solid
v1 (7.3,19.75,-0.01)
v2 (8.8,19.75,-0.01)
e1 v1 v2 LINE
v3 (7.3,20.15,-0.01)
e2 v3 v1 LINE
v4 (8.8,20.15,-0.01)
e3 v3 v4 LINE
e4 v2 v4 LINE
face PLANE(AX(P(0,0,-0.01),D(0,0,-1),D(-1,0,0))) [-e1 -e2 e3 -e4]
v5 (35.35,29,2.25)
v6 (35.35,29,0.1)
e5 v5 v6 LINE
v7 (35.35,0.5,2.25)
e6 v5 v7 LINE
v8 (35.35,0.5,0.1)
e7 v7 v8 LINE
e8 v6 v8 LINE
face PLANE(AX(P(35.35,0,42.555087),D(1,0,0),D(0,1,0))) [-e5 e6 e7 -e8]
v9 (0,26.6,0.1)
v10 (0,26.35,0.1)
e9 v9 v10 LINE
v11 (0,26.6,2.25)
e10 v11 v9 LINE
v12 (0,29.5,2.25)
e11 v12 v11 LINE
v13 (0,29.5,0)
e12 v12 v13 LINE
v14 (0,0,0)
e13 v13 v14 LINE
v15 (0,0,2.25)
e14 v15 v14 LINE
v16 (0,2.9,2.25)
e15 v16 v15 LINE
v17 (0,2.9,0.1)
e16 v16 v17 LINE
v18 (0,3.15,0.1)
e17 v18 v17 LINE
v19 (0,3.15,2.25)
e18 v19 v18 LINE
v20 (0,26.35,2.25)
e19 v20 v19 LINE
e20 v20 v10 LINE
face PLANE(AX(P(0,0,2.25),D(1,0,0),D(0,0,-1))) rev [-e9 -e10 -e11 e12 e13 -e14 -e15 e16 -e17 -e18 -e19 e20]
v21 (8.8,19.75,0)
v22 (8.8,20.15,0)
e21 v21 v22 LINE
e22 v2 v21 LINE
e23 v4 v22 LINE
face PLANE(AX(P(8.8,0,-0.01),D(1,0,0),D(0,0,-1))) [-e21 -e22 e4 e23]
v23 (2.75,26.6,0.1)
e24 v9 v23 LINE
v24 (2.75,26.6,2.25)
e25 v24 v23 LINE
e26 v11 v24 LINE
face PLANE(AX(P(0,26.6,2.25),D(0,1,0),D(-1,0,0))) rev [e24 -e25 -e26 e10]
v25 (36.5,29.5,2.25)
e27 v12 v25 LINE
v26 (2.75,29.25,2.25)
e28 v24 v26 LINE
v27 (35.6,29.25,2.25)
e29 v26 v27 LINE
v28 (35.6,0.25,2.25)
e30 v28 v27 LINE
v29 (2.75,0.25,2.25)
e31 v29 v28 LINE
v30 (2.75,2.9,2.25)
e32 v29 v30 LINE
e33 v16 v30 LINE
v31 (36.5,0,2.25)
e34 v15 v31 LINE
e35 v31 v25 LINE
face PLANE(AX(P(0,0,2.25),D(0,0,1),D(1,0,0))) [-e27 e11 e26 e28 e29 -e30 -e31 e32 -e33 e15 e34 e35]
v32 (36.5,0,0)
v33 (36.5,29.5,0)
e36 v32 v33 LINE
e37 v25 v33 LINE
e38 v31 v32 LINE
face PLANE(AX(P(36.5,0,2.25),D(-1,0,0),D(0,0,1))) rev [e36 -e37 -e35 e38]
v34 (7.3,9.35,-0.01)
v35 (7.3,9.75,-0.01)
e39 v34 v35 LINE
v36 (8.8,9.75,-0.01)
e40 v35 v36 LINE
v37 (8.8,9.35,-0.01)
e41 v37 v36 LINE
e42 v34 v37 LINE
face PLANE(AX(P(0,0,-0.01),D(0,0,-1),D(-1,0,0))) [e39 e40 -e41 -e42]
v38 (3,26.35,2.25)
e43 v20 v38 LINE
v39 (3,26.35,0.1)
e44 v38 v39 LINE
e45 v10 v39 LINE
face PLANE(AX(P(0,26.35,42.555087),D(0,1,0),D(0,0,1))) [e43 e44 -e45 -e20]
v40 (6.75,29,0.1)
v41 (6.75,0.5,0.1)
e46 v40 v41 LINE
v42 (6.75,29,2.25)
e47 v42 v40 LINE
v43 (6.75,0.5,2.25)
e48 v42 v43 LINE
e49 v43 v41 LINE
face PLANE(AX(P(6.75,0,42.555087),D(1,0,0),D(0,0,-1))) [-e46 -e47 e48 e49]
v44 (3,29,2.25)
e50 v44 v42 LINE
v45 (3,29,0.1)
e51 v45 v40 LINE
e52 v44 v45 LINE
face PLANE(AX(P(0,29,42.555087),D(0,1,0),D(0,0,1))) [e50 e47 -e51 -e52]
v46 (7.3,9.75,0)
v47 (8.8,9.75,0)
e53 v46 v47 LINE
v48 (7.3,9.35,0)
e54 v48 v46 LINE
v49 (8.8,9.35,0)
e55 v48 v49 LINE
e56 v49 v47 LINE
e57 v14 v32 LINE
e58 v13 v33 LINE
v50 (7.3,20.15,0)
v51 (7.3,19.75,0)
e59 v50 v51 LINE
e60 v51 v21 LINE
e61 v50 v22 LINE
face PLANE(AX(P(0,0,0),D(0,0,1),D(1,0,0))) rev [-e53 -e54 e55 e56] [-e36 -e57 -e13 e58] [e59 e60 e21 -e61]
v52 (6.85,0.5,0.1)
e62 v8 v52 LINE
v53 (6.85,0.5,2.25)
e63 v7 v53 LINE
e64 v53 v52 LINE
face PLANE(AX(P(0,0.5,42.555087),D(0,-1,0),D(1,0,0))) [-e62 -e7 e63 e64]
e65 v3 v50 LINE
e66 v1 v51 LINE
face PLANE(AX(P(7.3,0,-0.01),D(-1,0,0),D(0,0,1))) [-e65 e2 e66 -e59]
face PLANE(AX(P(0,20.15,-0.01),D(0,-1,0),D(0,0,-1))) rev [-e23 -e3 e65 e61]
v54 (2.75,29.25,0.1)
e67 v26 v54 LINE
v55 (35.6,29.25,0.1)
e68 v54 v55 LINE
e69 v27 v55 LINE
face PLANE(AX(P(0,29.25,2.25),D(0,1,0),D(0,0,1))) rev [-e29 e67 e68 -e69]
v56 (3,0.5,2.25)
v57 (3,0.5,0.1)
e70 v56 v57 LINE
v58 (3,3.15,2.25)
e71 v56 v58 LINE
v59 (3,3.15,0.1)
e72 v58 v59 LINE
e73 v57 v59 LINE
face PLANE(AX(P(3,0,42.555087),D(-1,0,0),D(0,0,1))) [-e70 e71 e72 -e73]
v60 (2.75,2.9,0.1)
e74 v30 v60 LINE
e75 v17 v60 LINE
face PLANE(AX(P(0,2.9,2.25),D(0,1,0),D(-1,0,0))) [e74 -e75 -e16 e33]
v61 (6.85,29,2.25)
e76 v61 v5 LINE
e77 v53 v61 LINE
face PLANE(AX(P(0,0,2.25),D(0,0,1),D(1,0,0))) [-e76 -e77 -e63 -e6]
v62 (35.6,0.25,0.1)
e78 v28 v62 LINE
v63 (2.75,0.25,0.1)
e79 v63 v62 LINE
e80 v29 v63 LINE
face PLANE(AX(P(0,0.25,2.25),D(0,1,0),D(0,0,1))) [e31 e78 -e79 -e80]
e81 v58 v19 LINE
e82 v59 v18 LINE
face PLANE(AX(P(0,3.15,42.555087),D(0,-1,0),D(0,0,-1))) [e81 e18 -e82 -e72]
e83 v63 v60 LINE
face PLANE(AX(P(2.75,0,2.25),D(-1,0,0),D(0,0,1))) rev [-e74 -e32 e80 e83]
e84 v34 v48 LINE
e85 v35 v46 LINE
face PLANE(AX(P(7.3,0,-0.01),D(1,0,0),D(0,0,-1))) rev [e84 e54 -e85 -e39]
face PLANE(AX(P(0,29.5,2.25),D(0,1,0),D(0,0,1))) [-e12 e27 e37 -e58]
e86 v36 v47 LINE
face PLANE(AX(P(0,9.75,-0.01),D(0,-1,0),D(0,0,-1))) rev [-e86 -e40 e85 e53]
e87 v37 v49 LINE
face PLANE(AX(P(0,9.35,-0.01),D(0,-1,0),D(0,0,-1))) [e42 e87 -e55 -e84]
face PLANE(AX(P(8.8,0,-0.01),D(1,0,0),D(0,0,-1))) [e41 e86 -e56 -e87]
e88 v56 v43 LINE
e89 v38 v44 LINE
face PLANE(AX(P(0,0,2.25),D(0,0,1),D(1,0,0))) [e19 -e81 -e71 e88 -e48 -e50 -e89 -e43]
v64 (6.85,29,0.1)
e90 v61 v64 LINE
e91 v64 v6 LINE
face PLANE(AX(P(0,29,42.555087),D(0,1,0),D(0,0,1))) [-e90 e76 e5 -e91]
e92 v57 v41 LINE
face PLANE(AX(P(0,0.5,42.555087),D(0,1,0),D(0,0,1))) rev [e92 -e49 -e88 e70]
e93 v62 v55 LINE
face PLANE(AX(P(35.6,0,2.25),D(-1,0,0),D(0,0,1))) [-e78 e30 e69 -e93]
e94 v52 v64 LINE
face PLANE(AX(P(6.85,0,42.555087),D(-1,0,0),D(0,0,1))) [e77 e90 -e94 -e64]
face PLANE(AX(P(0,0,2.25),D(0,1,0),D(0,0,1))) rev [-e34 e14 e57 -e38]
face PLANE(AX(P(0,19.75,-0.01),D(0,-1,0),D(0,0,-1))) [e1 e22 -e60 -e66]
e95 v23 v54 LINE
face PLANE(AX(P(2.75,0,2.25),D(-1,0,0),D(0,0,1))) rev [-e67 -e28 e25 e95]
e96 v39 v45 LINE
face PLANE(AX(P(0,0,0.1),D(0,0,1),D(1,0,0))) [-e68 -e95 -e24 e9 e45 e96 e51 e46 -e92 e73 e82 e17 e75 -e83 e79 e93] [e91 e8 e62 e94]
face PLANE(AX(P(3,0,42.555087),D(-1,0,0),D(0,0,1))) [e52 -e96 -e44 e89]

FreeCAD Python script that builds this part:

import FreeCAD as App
import Part
import Sketcher

doc = App.newDocument("Part")
body = doc.addObject("PartDesign::Body", "Body")

sketch1 = body.newObject("Sketcher::SketchObject", "Sketch")
sketch1.AttachmentSupport = (doc.getObject("XY_Plane"), [""])
sketch1.MapMode = "FlatFace"
sketch1.addGeometry(Part.LineSegment(App.Vector(36.5, 29.5, 0), App.Vector(0, 29.5, 0)), False)
sketch1.addGeometry(Part.LineSegment(App.Vector(0, 29.5, 0), App.Vector(0, 26.6, 0)), False)
sketch1.addGeometry(Part.LineSegment(App.Vector(0, 26.6, 0), App.Vector(2.8, 26.6, 0)), False)
sketch1.addGeometry(Part.LineSegment(App.Vector(2.8, 26.6, 0), App.Vector(2.8, 29.2, 0)), False)
sketch1.addGeometry(Part.LineSegment(App.Vector(2.8, 29.2, 0), App.Vector(35.6, 29.2, 0)), False)
sketch1.addGeometry(Part.LineSegment(App.Vector(35.6, 29.2, 0), App.Vector(35.6, 0.2, 0)), False)
sketch1.addGeometry(Part.LineSegment(App.Vector(35.6, 0.2, 0), App.Vector(2.8, 0.2, 0)), False)
sketch1.addGeometry(Part.LineSegment(App.Vector(2.8, 0.2, 0), App.Vector(2.8, 2.9, 0)), False)
sketch1.addGeometry(Part.LineSegment(App.Vector(2.8, 2.9, 0), App.Vector(0, 2.9, 0)), False)
sketch1.addGeometry(Part.LineSegment(App.Vector(0, 2.9, 0), App.Vector(0, 0, 0)), False)
sketch1.addGeometry(Part.LineSegment(App.Vector(0, 0, 0), App.Vector(36.5, 0, 0)), False)
sketch1.addGeometry(Part.LineSegment(App.Vector(36.5, 0, 0), App.Vector(36.5, 29.5, 0)), False)
sketch1.addConstraint(Sketcher.Constraint("Coincident", 0, 2, 1, 1))
sketch1.addConstraint(Sketcher.Constraint("Coincident", 1, 2, 2, 1))
sketch1.addConstraint(Sketcher.Constraint("Coincident", 2, 2, 3, 1))
sketch1.addConstraint(Sketcher.Constraint("Coincident", 3, 2, 4, 1))
sketch1.addConstraint(Sketcher.Constraint("Coincident", 4, 2, 5, 1))
sketch1.addConstraint(Sketcher.Constraint("Coincident", 5, 2, 6, 1))
sketch1.addConstraint(Sketcher.Constraint("Coincident", 6, 2, 7, 1))
sketch1.addConstraint(Sketcher.Constraint("Coincident", 7, 2, 8, 1))
sketch1.addConstraint(Sketcher.Constraint("Coincident", 8, 2, 9, 1))
sketch1.addConstraint(Sketcher.Constraint("Coincident", 9, 2, 10, 1))
sketch1.addConstraint(Sketcher.Constraint("Coincident", 10, 2, 11, 1))
sketch1.addConstraint(Sketcher.Constraint("Coincident", 11, 2, 0, 1))
sketch1.addConstraint(Sketcher.Constraint("Horizontal", 0))
sketch1.addConstraint(Sketcher.Constraint("Vertical", 1))
sketch1.addConstraint(Sketcher.Constraint("Horizontal", 2))
sketch1.addConstraint(Sketcher.Constraint("Vertical", 3))
sketch1.addConstraint(Sketcher.Constraint("Horizontal", 4))
sketch1.addConstraint(Sketcher.Constraint("Vertical", 5))
sketch1.addConstraint(Sketcher.Constraint("Horizontal", 6))
sketch1.addConstraint(Sketcher.Constraint("Vertical", 7))
sketch1.addConstraint(Sketcher.Constraint("Horizontal", 8))
sketch1.addConstraint(Sketcher.Constraint("Vertical", 9))
sketch1.addConstraint(Sketcher.Constraint("Horizontal", 10))
sketch1.addConstraint(Sketcher.Constraint("Vertical", 11))
sketch1.addConstraint(Sketcher.Constraint("Coincident", 9, 2, -1, 1))
sketch1.addConstraint(Sketcher.Constraint("PointOnObject", 0, 2, -2))
sketch1.addConstraint(Sketcher.Constraint("Vertical", 3, 2, 6, 2))
sketch1.addConstraint(Sketcher.Constraint("Equal", 3, 7))
sketch1.addConstraint(Sketcher.Constraint("Equal", 1, 9))
sketch1.addConstraint(Sketcher.Constraint("DistanceY", 5, 2, 5, 1, 29.0))
sketch1.addConstraint(Sketcher.Constraint("DistanceX", 0, 2, 0, 1, 36.5))
sketch1.addConstraint(Sketcher.Constraint("DistanceY", 1, 2, 1, 1, 2.9))
sketch1.addConstraint(Sketcher.Constraint("DistanceY", 11, 1, 11, 2, 29.5))
sketch1.addConstraint(Sketcher.Constraint("DistanceX", 2, 1, 2, 2, 2.75))
sketch1.addConstraint(Sketcher.Constraint("DistanceX", 4, 1, 4, 2, 32.85))
pad1 = body.newObject("PartDesign::Pad", "Pad")
pad1.Profile = sketch1
pad1.Length = 2.25

sketch2 = body.newObject("Sketcher::SketchObject", "Sketch001")
sketch2.AttachmentSupport = (doc.getObject("XY_Plane"), [""])
sketch2.MapMode = "FlatFace"
sketch2.addGeometry(Part.LineSegment(App.Vector(2.8, 26.6, 0), App.Vector(0, 26.6, 0)), False)
sketch2.addGeometry(Part.LineSegment(App.Vector(0, 26.6, 0), App.Vector(0, 2.9, 0)), False)
sketch2.addGeometry(Part.LineSegment(App.Vector(0, 2.9, 0), App.Vector(2.8, 2.9, 0)), False)
sketch2.addGeometry(Part.LineSegment(App.Vector(2.8, 2.9, 0), App.Vector(2.8, 0.2, 0)), False)
sketch2.addGeometry(Part.LineSegment(App.Vector(2.8, 0.2, 0), App.Vector(35.6, 0.2, 0)), False)
sketch2.addGeometry(Part.LineSegment(App.Vector(35.6, 0.2, 0), App.Vector(35.6, 29.2, 0)), False)
sketch2.addGeometry(Part.LineSegment(App.Vector(35.6, 29.2, 0), App.Vector(2.8, 29.2, 0)), False)
sketch2.addGeometry(Part.LineSegment(App.Vector(2.8, 29.2, 0), App.Vector(2.8, 26.6, 0)), False)
sketch2.addConstraint(Sketcher.Constraint("Coincident", 0, 2, 1, 1))
sketch2.addConstraint(Sketcher.Constraint("Coincident", 1, 2, 2, 1))
sketch2.addConstraint(Sketcher.Constraint("Coincident", 2, 2, 3, 1))
sketch2.addConstraint(Sketcher.Constraint("Coincident", 3, 2, 4, 1))
sketch2.addConstraint(Sketcher.Constraint("Coincident", 4, 2, 5, 1))
sketch2.addConstraint(Sketcher.Constraint("Coincident", 5, 2, 6, 1))
sketch2.addConstraint(Sketcher.Constraint("Coincident", 6, 2, 7, 1))
sketch2.addConstraint(Sketcher.Constraint("Coincident", 7, 2, 0, 1))
sketch2.addConstraint(Sketcher.Constraint("Horizontal", 0))
sketch2.addConstraint(Sketcher.Constraint("Vertical", 1))
sketch2.addConstraint(Sketcher.Constraint("Horizontal", 2))
sketch2.addConstraint(Sketcher.Constraint("Vertical", 3))
sketch2.addConstraint(Sketcher.Constraint("Horizontal", 4))
sketch2.addConstraint(Sketcher.Constraint("Vertical", 5))
sketch2.addConstraint(Sketcher.Constraint("Horizontal", 6))
sketch2.addConstraint(Sketcher.Constraint("Vertical", 7))
sketch2.addConstraint(Sketcher.Constraint("PointOnObject", 0, 2, -2))
sketch2.addConstraint(Sketcher.Constraint("Vertical", 3, 2, 6, 2))
sketch2.addConstraint(Sketcher.Constraint("Equal", 3, 7))
sketch2.addConstraint(Sketcher.Constraint("DistanceY", 5, 1, 5, 2, 29.0))
sketch2.addConstraint(Sketcher.Constraint("DistanceY", 1, 2, 1, 1, 23.7))
sketch2.addConstraint(Sketcher.Constraint("DistanceX", 0, 2, 0, 1, 2.75))
sketch2.addConstraint(Sketcher.Constraint("DistanceX", 4, 1, 4, 2, 32.85))
sketch2.addConstraint(Sketcher.Constraint("DistanceY", -1, 1, 0, 2, 26.6))
pad2 = body.newObject("PartDesign::Pad", "Pad001")
pad2.Profile = sketch2
pad2.Length = 0.1

sketch3 = body.newObject("Sketcher::SketchObject", "Sketch002")
sketch3.AttachmentSupport = (doc.getObject("XY_Plane"), [""])
sketch3.MapMode = "FlatFace"
sketch3.AttachmentOffset = App.Placement(App.Vector(0, 0, 0.1), App.Rotation())
sketch3.addGeometry(Part.LineSegment(App.Vector(6.8, 29, 0), App.Vector(6.8, 0.5, 0)), False)
sketch3.addGeometry(Part.LineSegment(App.Vector(6.8, 0.5, 0), App.Vector(35.4, 0.5, 0)), False)
sketch3.addGeometry(Part.LineSegment(App.Vector(35.4, 0.5, 0), App.Vector(35.4, 29, 0)), False)
sketch3.addGeometry(Part.LineSegment(App.Vector(35.4, 29, 0), App.Vector(6.8, 29, 0)), False)
sketch3.addGeometry(Part.LineSegment(App.Vector(6.8, 0.5, 0), App.Vector(6.8, 29, 0)), False)
sketch3.addGeometry(Part.LineSegment(App.Vector(6.8, 29, 0), App.Vector(3, 29, 0)), False)
sketch3.addGeometry(Part.LineSegment(App.Vector(3, 29, 0), App.Vector(3, 26.4, 0)), False)
sketch3.addGeometry(Part.LineSegment(App.Vector(3, 26.4, 0), App.Vector(0, 26.4, 0)), False)
sketch3.addGeometry(Part.LineSegment(App.Vector(0, 26.4, 0), App.Vector(0, 3.1, 0)), False)
sketch3.addGeometry(Part.LineSegment(App.Vector(0, 3.1, 0), App.Vector(3, 3.1, 0)), False)
sketch3.addGeometry(Part.LineSegment(App.Vector(3, 3.1, 0), App.Vector(3, 0.5, 0)), False)
sketch3.addGeometry(Part.LineSegment(App.Vector(3, 0.5, 0), App.Vector(6.8, 0.5, 0)), False)
sketch3.addConstraint(Sketcher.Constraint("Coincident", 0, 2, 1, 1))
sketch3.addConstraint(Sketcher.Constraint("Coincident", 1, 2, 2, 1))
sketch3.addConstraint(Sketcher.Constraint("Coincident", 2, 2, 3, 1))
sketch3.addConstraint(Sketcher.Constraint("Coincident", 3, 2, 0, 1))
sketch3.addConstraint(Sketcher.Constraint("Coincident", 4, 2, 5, 1))
sketch3.addConstraint(Sketcher.Constraint("Coincident", 5, 2, 6, 1))
sketch3.addConstraint(Sketcher.Constraint("Coincident", 6, 2, 7, 1))
sketch3.addConstraint(Sketcher.Constraint("Coincident", 7, 2, 8, 1))
sketch3.addConstraint(Sketcher.Constraint("Coincident", 8, 2, 9, 1))
sketch3.addConstraint(Sketcher.Constraint("Coincident", 9, 2, 10, 1))
sketch3.addConstraint(Sketcher.Constraint("Coincident", 10, 2, 11, 1))
sketch3.addConstraint(Sketcher.Constraint("Coincident", 11, 2, 4, 1))
sketch3.addConstraint(Sketcher.Constraint("Vertical", 0))
sketch3.addConstraint(Sketcher.Constraint("Horizontal", 1))
sketch3.addConstraint(Sketcher.Constraint("Vertical", 2))
sketch3.addConstraint(Sketcher.Constraint("Horizontal", 3))
sketch3.addConstraint(Sketcher.Constraint("Vertical", 4))
sketch3.addConstraint(Sketcher.Constraint("Horizontal", 5))
sketch3.addConstraint(Sketcher.Constraint("Vertical", 6))
sketch3.addConstraint(Sketcher.Constraint("Horizontal", 7))
sketch3.addConstraint(Sketcher.Constraint("Vertical", 8))
sketch3.addConstraint(Sketcher.Constraint("Horizontal", 9))
sketch3.addConstraint(Sketcher.Constraint("Vertical", 10))
sketch3.addConstraint(Sketcher.Constraint("Horizontal", 11))
sketch3.addConstraint(Sketcher.Constraint("PointOnObject", 7, 2, -2))
sketch3.addConstraint(Sketcher.Constraint("Horizontal", 3, 2, 4, 2))
sketch3.addConstraint(Sketcher.Constraint("Horizontal", 1, 2, 10, 2))
sketch3.addConstraint(Sketcher.Constraint("Vertical", 6, 2, 9, 2))
sketch3.addConstraint(Sketcher.Constraint("Equal", 3, 0))
sketch3.addConstraint(Sketcher.Constraint("Equal", 6, 10))
sketch3.addConstraint(Sketcher.Constraint("DistanceX", 7, 2, 7, 1, 3.0))
sketch3.addConstraint(Sketcher.Constraint("DistanceX", 1, 1, 1, 2, 28.5))
sketch3.addConstraint(Sketcher.Constraint("DistanceY", 8, 2, 8, 1, 23.2))
sketch3.addConstraint(Sketcher.Constraint("DistanceY", -1, 1, 2, 2, 29.0))
sketch3.addConstraint(Sketcher.Constraint("DistanceX", 5, 2, 5, 1, 3.75))
sketch3.addConstraint(Sketcher.Constraint("DistanceX", 4, 2, 3, 2, 0.1))
pad3 = body.newObject("PartDesign::Pad", "Pad002")
pad3.Profile = sketch3
pad3.Length = 2.15

sketch4 = body.newObject("Sketcher::SketchObject", "Sketch003")
sketch4.AttachmentSupport = (doc.getObject("XY_Plane"), [""])
sketch4.MapMode = "FlatFace"
sketch4.addGeometry(Part.LineSegment(App.Vector(8.8, 9.75, 0), App.Vector(8.8, 9.35, 0)), False)
sketch4.addGeometry(Part.LineSegment(App.Vector(8.8, 9.35, 0), App.Vector(7.3, 9.35, 0)), False)
sketch4.addGeometry(Part.LineSegment(App.Vector(7.3, 9.35, 0), App.Vector(7.3, 9.75, 0)), False)
sketch4.addGeometry(Part.LineSegment(App.Vector(7.3, 9.75, 0), App.Vector(8.8, 9.75, 0)), False)
sketch4.addGeometry(Part.LineSegment(App.Vector(8.8, 20.15, 0), App.Vector(8.8, 19.75, 0)), False)
sketch4.addGeometry(Part.LineSegment(App.Vector(8.8, 19.75, 0), App.Vector(7.3, 19.75, 0)), False)
sketch4.addGeometry(Part.LineSegment(App.Vector(7.3, 19.75, 0), App.Vector(7.3, 20.15, 0)), False)
sketch4.addGeometry(Part.LineSegment(App.Vector(7.3, 20.15, 0), App.Vector(8.8, 20.15, 0)), False)
sketch4.addConstraint(Sketcher.Constraint("Coincident", 0, 2, 1, 1))
sketch4.addConstraint(Sketcher.Constraint("Coincident", 1, 2, 2, 1))
sketch4.addConstraint(Sketcher.Constraint("Coincident", 2, 2, 3, 1))
sketch4.addConstraint(Sketcher.Constraint("Coincident", 3, 2, 0, 1))
sketch4.addConstraint(Sketcher.Constraint("Coincident", 4, 2, 5, 1))
sketch4.addConstraint(Sketcher.Constraint("Coincident", 5, 2, 6, 1))
sketch4.addConstraint(Sketcher.Constraint("Coincident", 6, 2, 7, 1))
sketch4.addConstraint(Sketcher.Constraint("Coincident", 7, 2, 4, 1))
sketch4.addConstraint(Sketcher.Constraint("Vertical", 0))
sketch4.addConstraint(Sketcher.Constraint("Horizontal", 1))
sketch4.addConstraint(Sketcher.Constraint("Vertical", 2))
sketch4.addConstraint(Sketcher.Constraint("Horizontal", 3))
sketch4.addConstraint(Sketcher.Constraint("Vertical", 4))
sketch4.addConstraint(Sketcher.Constraint("Horizontal", 5))
sketch4.addConstraint(Sketcher.Constraint("Vertical", 6))
sketch4.addConstraint(Sketcher.Constraint("Horizontal", 7))
sketch4.addConstraint(Sketcher.Constraint("Vertical", 3, 2, 4, 2))
sketch4.addConstraint(Sketcher.Constraint("Vertical", 2, 2, 5, 2))
sketch4.addConstraint(Sketcher.Constraint("Equal", 2, 4))
sketch4.addConstraint(Sketcher.Constraint("DistanceX", 1, 2, 1, 1, 1.5))
sketch4.addConstraint(Sketcher.Constraint("DistanceY", 0, 2, 0, 1, 0.4))
sketch4.addConstraint(Sketcher.Constraint("DistanceY", 3, 2, 4, 2, 10.0))
sketch4.addConstraint(Sketcher.Constraint("DistanceX", -1, 1, 0, 2, 8.8))
sketch4.addConstraint(Sketcher.Constraint("DistanceY", -1, 1, 0, 2, 9.35))
pad4 = body.newObject("PartDesign::Pad", "Pad003")
pad4.Profile = sketch4
pad4.Length = 0.01
pad4.Reversed = True

doc.recompute()
